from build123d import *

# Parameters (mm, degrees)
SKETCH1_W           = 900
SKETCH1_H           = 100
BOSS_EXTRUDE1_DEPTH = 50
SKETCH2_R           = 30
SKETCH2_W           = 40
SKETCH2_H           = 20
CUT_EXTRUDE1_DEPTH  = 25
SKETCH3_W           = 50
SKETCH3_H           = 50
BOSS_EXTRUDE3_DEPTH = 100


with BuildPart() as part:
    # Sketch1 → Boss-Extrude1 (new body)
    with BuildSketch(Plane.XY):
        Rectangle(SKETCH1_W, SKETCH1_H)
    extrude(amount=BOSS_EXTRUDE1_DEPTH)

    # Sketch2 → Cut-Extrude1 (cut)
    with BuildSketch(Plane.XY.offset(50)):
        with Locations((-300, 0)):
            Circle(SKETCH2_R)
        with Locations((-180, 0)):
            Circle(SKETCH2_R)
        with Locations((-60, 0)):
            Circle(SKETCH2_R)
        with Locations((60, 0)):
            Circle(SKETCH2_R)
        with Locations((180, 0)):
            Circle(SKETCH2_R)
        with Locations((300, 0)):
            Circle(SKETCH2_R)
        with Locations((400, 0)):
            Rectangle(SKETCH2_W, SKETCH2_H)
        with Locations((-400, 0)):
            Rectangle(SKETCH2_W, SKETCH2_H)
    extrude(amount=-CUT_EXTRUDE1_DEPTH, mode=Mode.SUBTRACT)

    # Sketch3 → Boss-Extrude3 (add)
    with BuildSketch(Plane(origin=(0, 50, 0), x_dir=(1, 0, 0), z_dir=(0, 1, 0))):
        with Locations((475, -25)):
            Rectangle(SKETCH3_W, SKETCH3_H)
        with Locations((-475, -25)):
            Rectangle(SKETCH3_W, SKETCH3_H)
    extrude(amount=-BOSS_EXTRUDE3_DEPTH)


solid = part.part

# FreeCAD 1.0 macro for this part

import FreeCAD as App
import Part
import Sketcher
from FreeCAD import Vector
Q = App.Units.Quantity

doc = App.newDocument("Part")
body = doc.addObject("PartDesign::Body", "Body")

sketch1 = body.newObject("Sketcher::SketchObject", "Sketch")
sketch1.AttachmentSupport = (doc.getObject("XY_Plane"), [""])
sketch1.MapMode = "FlatFace"
sketch1.addGeometry(Part.LineSegment(Vector(-450, 50, 0), Vector(-450, -50, 0)), False)
sketch1.addGeometry(Part.LineSegment(Vector(-450, -50, 0), Vector(450, -50, 0)), False)
sketch1.addGeometry(Part.LineSegment(Vector(450, -50, 0), Vector(450, 50, 0)), False)
sketch1.addGeometry(Part.LineSegment(Vector(450, 50, 0), Vector(-450, 50, 0)), False)
sketch1.addConstraint(Sketcher.Constraint("Coincident", 0, 2, 1, 1))
sketch1.addConstraint(Sketcher.Constraint("Coincident", 1, 2, 2, 1))
sketch1.addConstraint(Sketcher.Constraint("Coincident", 2, 2, 3, 1))
sketch1.addConstraint(Sketcher.Constraint("Coincident", 3, 2, 0, 1))
sketch1.addConstraint(Sketcher.Constraint("Vertical", 0))
sketch1.addConstraint(Sketcher.Constraint("Horizontal", 1))
sketch1.addConstraint(Sketcher.Constraint("Vertical", 2))
sketch1.addConstraint(Sketcher.Constraint("Horizontal", 3))
sketch1.addConstraint(Sketcher.Constraint("Symmetric", 0, 2, 2, 2, -1, 1))
sketch1.addConstraint(Sketcher.Constraint("DistanceX", 1, 1, 1, 2, Q("900 mm")))
sketch1.addConstraint(Sketcher.Constraint("DistanceY", 0, 2, 0, 1, Q("100 mm")))
pad1 = body.newObject("PartDesign::Pad", "Pad")
pad1.Profile = sketch1
pad1.Length = 50

sketch2 = body.newObject("Sketcher::SketchObject", "Sketch001")
sketch2.AttachmentSupport = (doc.getObject("XY_Plane"), [""])
sketch2.MapMode = "FlatFace"
sketch2.AttachmentOffset = App.Placement(Vector(0, 0, 50), App.Rotation())
sketch2.addGeometry(Part.Circle(Vector(-300, 0, 0), Vector(0, 0, 1), 30), False)
sketch2.addGeometry(Part.Circle(Vector(-180, 0, 0), Vector(0, 0, 1), 30), False)
sketch2.addGeometry(Part.Circle(Vector(-60, 0, 0), Vector(0, 0, 1), 30), False)
sketch2.addGeometry(Part.Circle(Vector(60, 0, 0), Vector(0, 0, 1), 30), False)
sketch2.addGeometry(Part.Circle(Vector(180, 0, 0), Vector(0, 0, 1), 30), False)
sketch2.addGeometry(Part.Circle(Vector(300, 0, 0), Vector(0, 0, 1), 30), False)
sketch2.addGeometry(Part.LineSegment(Vector(380, 10, 0), Vector(380, -10, 0)), False)
sketch2.addGeometry(Part.LineSegment(Vector(380, -10, 0), Vector(420, -10, 0)), False)
sketch2.addGeometry(Part.LineSegment(Vector(420, -10, 0), Vector(420, 10, 0)), False)
sketch2.addGeometry(Part.LineSegment(Vector(420, 10, 0), Vector(380, 10, 0)), False)
sketch2.addGeometry(Part.LineSegment(Vector(-420, 10, 0), Vector(-420, -10, 0)), False)
sketch2.addGeometry(Part.LineSegment(Vector(-420, -10, 0), Vector(-380, -10, 0)), False)
sketch2.addGeometry(Part.LineSegment(Vector(-380, -10, 0), Vector(-380, 10, 0)), False)
sketch2.addGeometry(Part.LineSegment(Vector(-380, 10, 0), Vector(-420, 10, 0)), False)
sketch2.addConstraint(Sketcher.Constraint("Coincident", 6, 2, 7, 1))
sketch2.addConstraint(Sketcher.Constraint("Coincident", 7, 2, 8, 1))
sketch2.addConstraint(Sketcher.Constraint("Coincident", 8, 2, 9, 1))
sketch2.addConstraint(Sketcher.Constraint("Coincident", 9, 2, 6, 1))
sketch2.addConstraint(Sketcher.Constraint("Coincident", 10, 2, 11, 1))
sketch2.addConstraint(Sketcher.Constraint("Coincident", 11, 2, 12, 1))
sketch2.addConstraint(Sketcher.Constraint("Coincident", 12, 2, 13, 1))
sketch2.addConstraint(Sketcher.Constraint("Coincident", 13, 2, 10, 1))
sketch2.addConstraint(Sketcher.Constraint("Vertical", 6))
sketch2.addConstraint(Sketcher.Constraint("Horizontal", 7))
sketch2.addConstraint(Sketcher.Constraint("Vertical", 8))
sketch2.addConstraint(Sketcher.Constraint("Horizontal", 9))
sketch2.addConstraint(Sketcher.Constraint("Vertical", 10))
sketch2.addConstraint(Sketcher.Constraint("Horizontal", 11))
sketch2.addConstraint(Sketcher.Constraint("Vertical", 12))
sketch2.addConstraint(Sketcher.Constraint("Horizontal", 13))
sketch2.addConstraint(Sketcher.Constraint("Equal", 0, 1))
sketch2.addConstraint(Sketcher.Constraint("Equal", 1, 2))
sketch2.addConstraint(Sketcher.Constraint("Equal", 2, 3))
sketch2.addConstraint(Sketcher.Constraint("Equal", 3, 4))
sketch2.addConstraint(Sketcher.Constraint("Equal", 4, 5))
sketch2.addConstraint(Sketcher.Constraint("Symmetric", 2, 3, 3, 3, -1, 1))
sketch2.addConstraint(Sketcher.Constraint("Symmetric", 1, 3, 4, 3, -1, 1))
sketch2.addConstraint(Sketcher.Constraint("Symmetric", 0, 3, 5, 3, -1, 1))
sketch2.addConstraint(Sketcher.Constraint("Symmetric", 8, 2, 10, 2, -1, 1))
sketch2.addConstraint(Sketcher.Constraint("Symmetric", 6, 2, 12, 2, -1, 1))
sketch2.addConstraint(Sketcher.Constraint("PointOnObject", 0, 3, -1))
sketch2.addConstraint(Sketcher.Constraint("PointOnObject", 1, 3, -1))
sketch2.addConstraint(Sketcher.Constraint("PointOnObject", 2, 3, -1))
sketch2.addConstraint(Sketcher.Constraint("Horizontal", 7, 2, 10, 2))
sketch2.addConstraint(Sketcher.Constraint("Diameter", 0, Q("60 mm")))
sketch2.addConstraint(Sketcher.Constraint("DistanceX", 7, 1, 7, 2, Q("40 mm")))
sketch2.addConstraint(Sketcher.Constraint("DistanceY", 6, 2, 6, 1, Q("20 mm")))
sketch2.addConstraint(Sketcher.Constraint("DistanceX", 0, 3, -1, 1, Q("300 mm")))
sketch2.addConstraint(Sketcher.Constraint("DistanceX", 1, 3, -1, 1, Q("180 mm")))
sketch2.addConstraint(Sketcher.Constraint("DistanceX", 2, 3, -1, 1, Q("60 mm")))
sketch2.addConstraint(Sketcher.Constraint("DistanceX", -1, 1, 6, 2, Q("380 mm")))
pocket1 = body.newObject("PartDesign::Pocket", "Pocket")
pocket1.Profile = sketch2
pocket1.Length = 25

sketch3 = body.newObject("Sketcher::SketchObject", "Sketch002")
sketch3.AttachmentSupport = (doc.getObject("XZ_Plane"), [""])
sketch3.MapMode = "FlatFace"
sketch3.AttachmentOffset = App.Placement(Vector(0, 0, -50), App.Rotation())
sketch3.addGeometry(Part.LineSegment(Vector(450, 0, 0), Vector(450, 50, 0)), False)
sketch3.addGeometry(Part.LineSegment(Vector(450, 50, 0), Vector(500, 50, 0)), False)
sketch3.addGeometry(Part.LineSegment(Vector(500, 50, 0), Vector(500, 0, 0)), False)
sketch3.addGeometry(Part.LineSegment(Vector(500, 0, 0), Vector(450, 0, 0)), False)
sketch3.addGeometry(Part.LineSegment(Vector(-500, 0, 0), Vector(-500, 50, 0)), False)
sketch3.addGeometry(Part.LineSegment(Vector(-500, 50, 0), Vector(-450, 50, 0)), False)
sketch3.addGeometry(Part.LineSegment(Vector(-450, 50, 0), Vector(-450, 0, 0)), False)
sketch3.addGeometry(Part.LineSegment(Vector(-450, 0, 0), Vector(-500, 0, 0)), False)
sketch3.addConstraint(Sketcher.Constraint("Coincident", 0, 2, 1, 1))
sketch3.addConstraint(Sketcher.Constraint("Coincident", 1, 2, 2, 1))
sketch3.addConstraint(Sketcher.Constraint("Coincident", 2, 2, 3, 1))
sketch3.addConstraint(Sketcher.Constraint("Coincident", 3, 2, 0, 1))
sketch3.addConstraint(Sketcher.Constraint("Coincident", 4, 2, 5, 1))
sketch3.addConstraint(Sketcher.Constraint("Coincident", 5, 2, 6, 1))
sketch3.addConstraint(Sketcher.Constraint("Coincident", 6, 2, 7, 1))
sketch3.addConstraint(Sketcher.Constraint("Coincident", 7, 2, 4, 1))
sketch3.addConstraint(Sketcher.Constraint("Vertical", 0))
sketch3.addConstraint(Sketcher.Constraint("Horizontal", 1))
sketch3.addConstraint(Sketcher.Constraint("Vertical", 2))
sketch3.addConstraint(Sketcher.Constraint("Horizontal", 3))
sketch3.addConstraint(Sketcher.Constraint("Vertical", 4))
sketch3.addConstraint(Sketcher.Constraint("Horizontal", 5))
sketch3.addConstraint(Sketcher.Constraint("Vertical", 6))
sketch3.addConstraint(Sketcher.Constraint("Horizontal", 7))
sketch3.addConstraint(Sketcher.Constraint("Symmetric", 3, 2, 6, 2, -1, 1))
sketch3.addConstraint(Sketcher.Constraint("Symmetric", 1, 2, 4, 2, -2))
sketch3.addConstraint(Sketcher.Constraint("PointOnObject", 2, 2, -1))
sketch3.addConstraint(Sketcher.Constraint("Equal", 7, 0))
sketch3.addConstraint(Sketcher.Constraint("DistanceX", 1, 1, 1, 2, Q("50 mm")))
sketch3.addConstraint(Sketcher.Constraint("DistanceX", -1, 1, 0, 2, Q("450 mm")))
pad2 = body.newObject("PartDesign::Pad", "Pad001")
pad2.Profile = sketch3
pad2.Length = 100

doc.recompute()
